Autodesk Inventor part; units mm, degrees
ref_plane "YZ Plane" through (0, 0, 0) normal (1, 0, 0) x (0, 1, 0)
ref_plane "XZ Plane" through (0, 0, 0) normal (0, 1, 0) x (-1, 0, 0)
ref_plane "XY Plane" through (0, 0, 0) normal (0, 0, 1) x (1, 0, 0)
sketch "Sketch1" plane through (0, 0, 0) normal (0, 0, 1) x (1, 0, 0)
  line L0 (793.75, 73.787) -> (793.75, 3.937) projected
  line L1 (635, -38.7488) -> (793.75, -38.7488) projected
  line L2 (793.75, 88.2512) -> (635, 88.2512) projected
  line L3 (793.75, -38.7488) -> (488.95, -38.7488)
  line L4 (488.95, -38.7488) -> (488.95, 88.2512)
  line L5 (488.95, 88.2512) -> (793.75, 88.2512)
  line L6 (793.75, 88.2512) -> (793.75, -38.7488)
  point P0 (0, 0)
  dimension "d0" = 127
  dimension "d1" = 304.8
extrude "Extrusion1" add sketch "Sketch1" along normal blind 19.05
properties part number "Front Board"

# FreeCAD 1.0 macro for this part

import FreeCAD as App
import Part
import Sketcher
Q = App.Units.Quantity


def add_polygon(sketch, points):
    """Adds a closed chain of lines whose ends are joined by coincident constraints."""
    first, n = sketch.GeometryCount, len(points)
    for a, b in zip(points, points[1:] + points[:1]):
        sketch.addGeometry(Part.LineSegment(App.Vector(*a, 0), App.Vector(*b, 0)), False)
    for i in range(n):
        sketch.addConstraint(Sketcher.Constraint("Coincident", first + i, 2, first + (i + 1) % n, 1))

doc = App.newDocument("Part")
body = doc.addObject("PartDesign::Body", "Body")

# Sketch on XY plane
sketch1 = body.newObject("Sketcher::SketchObject", "Sketch")
sketch1.AttachmentSupport = (doc.getObject("XY_Plane"), [""])
sketch1.MapMode = "FlatFace"
add_polygon(sketch1, [(794, -39), (794, 88), (489, 88), (489, -39)])  # lines 0-3
sketch1.addConstraint([
    Sketcher.Constraint("Vertical", 0),
    Sketcher.Constraint("Horizontal", 1),
    Sketcher.Constraint("Vertical", 2),
    Sketcher.Constraint("Horizontal", 3),
    Sketcher.Constraint("DistanceX", 1, 2, 1, 1, Q("12 in")),
    Sketcher.Constraint("DistanceY", 0, 1, 0, 2, Q("5 in")),
    Sketcher.Constraint("DistanceX", -1, 1, 0, 2, Q("31.25 in")),
    Sketcher.Constraint("DistanceY", -1, 1, 0, 2, Q("88.2512 mm")),
])
pad1 = body.newObject("PartDesign::Pad", "Pad")
pad1.Profile = sketch1
pad1.Length = Q("0.75 in")

doc.recompute()
